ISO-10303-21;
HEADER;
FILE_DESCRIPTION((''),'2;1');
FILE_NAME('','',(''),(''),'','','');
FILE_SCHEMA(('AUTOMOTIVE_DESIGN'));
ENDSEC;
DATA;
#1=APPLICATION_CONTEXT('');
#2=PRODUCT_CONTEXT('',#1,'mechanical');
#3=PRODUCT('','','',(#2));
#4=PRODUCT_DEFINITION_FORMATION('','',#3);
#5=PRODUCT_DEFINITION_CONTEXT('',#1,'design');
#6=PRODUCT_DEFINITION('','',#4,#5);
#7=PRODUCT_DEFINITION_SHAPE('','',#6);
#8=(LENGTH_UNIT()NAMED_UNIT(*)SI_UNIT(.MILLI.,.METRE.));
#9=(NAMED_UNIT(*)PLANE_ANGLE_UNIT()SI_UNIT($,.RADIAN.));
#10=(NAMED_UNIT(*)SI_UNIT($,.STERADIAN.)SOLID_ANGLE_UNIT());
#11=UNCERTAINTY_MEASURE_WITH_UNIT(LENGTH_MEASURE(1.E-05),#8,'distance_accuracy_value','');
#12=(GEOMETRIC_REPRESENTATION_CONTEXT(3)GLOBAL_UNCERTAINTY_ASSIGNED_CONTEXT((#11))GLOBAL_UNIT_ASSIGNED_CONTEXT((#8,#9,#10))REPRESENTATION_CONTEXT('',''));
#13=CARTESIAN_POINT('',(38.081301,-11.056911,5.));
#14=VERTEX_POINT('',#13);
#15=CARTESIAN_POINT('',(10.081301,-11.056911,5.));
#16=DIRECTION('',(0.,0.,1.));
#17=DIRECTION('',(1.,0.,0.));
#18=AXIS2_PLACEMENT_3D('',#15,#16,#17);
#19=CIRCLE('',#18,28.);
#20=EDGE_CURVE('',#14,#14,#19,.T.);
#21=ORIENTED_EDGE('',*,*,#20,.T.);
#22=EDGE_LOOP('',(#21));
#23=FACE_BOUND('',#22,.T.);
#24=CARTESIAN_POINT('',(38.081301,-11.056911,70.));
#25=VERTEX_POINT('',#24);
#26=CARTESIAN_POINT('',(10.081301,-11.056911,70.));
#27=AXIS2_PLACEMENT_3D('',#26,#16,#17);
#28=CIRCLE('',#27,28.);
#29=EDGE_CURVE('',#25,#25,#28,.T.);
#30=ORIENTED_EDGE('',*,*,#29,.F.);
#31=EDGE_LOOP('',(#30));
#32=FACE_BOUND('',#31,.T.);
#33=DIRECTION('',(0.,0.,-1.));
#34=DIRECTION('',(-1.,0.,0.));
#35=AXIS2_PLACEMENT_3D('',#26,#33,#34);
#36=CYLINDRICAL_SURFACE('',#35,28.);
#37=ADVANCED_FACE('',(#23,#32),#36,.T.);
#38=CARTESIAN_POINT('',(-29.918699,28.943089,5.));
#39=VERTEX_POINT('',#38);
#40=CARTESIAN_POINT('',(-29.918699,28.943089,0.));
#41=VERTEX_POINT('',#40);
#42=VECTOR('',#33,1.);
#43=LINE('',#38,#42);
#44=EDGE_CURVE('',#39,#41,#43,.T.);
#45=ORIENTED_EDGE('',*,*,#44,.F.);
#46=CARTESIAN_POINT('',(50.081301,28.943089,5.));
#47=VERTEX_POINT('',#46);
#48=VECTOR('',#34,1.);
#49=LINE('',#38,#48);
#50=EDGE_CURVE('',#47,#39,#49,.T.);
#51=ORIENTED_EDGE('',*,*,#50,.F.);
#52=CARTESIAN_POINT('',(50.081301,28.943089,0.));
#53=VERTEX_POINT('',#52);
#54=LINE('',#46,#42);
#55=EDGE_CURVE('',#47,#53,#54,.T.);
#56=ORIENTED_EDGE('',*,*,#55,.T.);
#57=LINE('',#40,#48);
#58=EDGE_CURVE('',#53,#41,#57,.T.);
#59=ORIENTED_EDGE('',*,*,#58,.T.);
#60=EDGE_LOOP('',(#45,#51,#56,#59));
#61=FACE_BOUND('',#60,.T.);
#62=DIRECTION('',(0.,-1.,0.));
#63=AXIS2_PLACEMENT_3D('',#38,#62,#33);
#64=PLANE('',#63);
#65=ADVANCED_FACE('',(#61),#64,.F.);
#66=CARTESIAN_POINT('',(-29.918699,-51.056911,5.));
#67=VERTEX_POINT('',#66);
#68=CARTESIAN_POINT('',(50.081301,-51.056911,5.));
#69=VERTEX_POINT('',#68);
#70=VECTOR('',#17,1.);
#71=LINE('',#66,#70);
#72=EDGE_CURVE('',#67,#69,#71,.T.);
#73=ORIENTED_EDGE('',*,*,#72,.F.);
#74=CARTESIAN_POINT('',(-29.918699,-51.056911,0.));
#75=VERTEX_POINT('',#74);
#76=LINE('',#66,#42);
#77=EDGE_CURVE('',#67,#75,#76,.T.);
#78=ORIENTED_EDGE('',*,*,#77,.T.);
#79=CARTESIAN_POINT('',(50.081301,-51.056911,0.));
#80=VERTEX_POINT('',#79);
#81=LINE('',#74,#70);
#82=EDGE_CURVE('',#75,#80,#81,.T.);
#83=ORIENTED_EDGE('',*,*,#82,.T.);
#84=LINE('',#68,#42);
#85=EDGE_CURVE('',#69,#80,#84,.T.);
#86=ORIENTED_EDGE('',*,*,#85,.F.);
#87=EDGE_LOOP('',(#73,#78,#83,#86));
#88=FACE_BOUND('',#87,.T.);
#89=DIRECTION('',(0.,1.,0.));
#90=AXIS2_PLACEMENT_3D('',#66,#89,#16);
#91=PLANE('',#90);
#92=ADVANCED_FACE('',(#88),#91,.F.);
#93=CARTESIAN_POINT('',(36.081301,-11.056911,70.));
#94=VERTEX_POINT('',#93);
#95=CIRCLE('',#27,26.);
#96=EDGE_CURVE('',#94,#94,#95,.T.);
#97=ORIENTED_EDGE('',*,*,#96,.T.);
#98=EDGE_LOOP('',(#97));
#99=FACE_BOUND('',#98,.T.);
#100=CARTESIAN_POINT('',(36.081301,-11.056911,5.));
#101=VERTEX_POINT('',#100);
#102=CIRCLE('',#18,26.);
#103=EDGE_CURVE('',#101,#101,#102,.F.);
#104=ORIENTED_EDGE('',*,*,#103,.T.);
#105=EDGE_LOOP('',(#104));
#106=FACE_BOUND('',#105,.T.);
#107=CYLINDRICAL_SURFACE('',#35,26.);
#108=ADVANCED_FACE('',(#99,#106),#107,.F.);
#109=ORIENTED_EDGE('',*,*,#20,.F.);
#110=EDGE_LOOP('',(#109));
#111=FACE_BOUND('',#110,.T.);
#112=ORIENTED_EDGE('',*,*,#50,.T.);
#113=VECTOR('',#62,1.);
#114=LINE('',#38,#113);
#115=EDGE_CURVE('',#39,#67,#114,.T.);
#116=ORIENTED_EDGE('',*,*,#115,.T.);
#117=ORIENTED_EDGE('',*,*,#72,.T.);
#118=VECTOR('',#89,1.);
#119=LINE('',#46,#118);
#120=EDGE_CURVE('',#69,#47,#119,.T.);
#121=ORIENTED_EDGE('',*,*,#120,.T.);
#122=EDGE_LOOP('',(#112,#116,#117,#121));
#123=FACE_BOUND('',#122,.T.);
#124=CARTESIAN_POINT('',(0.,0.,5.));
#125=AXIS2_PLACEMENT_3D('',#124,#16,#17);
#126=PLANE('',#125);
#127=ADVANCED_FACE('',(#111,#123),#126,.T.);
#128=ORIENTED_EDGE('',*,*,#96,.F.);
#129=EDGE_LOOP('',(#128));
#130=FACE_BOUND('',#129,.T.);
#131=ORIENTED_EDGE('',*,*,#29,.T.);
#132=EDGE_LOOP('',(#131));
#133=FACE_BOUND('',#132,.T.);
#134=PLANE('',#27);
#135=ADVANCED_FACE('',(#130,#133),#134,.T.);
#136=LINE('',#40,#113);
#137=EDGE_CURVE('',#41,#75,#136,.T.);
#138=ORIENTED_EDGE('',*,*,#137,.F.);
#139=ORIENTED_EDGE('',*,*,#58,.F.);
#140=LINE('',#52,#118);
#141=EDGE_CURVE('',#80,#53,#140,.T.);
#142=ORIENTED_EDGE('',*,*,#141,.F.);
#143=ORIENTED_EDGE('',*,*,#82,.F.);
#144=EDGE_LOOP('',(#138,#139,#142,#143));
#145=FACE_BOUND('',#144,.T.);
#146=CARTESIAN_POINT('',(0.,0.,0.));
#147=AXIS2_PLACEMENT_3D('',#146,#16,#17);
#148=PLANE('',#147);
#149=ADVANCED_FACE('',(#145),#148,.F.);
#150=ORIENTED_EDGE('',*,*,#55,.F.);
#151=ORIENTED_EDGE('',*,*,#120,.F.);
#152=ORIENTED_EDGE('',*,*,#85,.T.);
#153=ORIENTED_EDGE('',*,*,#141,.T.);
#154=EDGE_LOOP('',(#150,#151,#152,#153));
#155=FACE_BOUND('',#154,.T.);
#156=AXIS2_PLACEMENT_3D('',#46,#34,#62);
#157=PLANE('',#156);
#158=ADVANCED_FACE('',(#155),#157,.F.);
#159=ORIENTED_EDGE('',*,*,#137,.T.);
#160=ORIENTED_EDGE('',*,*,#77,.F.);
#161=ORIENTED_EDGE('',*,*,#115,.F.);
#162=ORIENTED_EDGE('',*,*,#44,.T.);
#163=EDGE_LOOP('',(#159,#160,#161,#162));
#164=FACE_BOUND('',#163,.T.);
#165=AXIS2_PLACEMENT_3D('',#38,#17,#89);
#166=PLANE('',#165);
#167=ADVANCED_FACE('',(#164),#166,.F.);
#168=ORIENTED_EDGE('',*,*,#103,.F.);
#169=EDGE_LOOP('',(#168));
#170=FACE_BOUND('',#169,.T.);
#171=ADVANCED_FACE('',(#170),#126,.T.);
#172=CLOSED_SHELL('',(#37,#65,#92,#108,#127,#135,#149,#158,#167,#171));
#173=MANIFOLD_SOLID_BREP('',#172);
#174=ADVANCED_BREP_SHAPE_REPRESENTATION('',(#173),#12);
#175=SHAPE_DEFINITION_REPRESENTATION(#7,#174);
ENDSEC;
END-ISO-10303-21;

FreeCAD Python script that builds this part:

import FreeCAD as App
import Part
import Sketcher

V = App.Vector
Q = App.Units.Quantity


def add_polygon(sketch, points):
    """Adds a closed chain of lines whose ends are joined by coincident constraints."""
    first, n = sketch.GeometryCount, len(points)
    for a, b in zip(points, points[1:] + points[:1]):
        sketch.addGeometry(Part.LineSegment(App.Vector(*a, 0), App.Vector(*b, 0)), False)
    for i in range(n):
        sketch.addConstraint(Sketcher.Constraint("Coincident", first + i, 2, first + (i + 1) % n, 1))

doc = App.newDocument("Part")
body = doc.addObject("PartDesign::Body", "Body")

sketch1 = body.newObject("Sketcher::SketchObject", "Sketch")
sketch1.AttachmentSupport = (doc.getObject("XY_Plane"), [""])
sketch1.MapMode = "FlatFace"
add_polygon(sketch1, [(-30, 29), (-30, -51), (50, -51), (50, 29)])
sketch1.addConstraint([
    Sketcher.Constraint("Vertical", 0),
    Sketcher.Constraint("Horizontal", 1),
    Sketcher.Constraint("Vertical", 2),
    Sketcher.Constraint("Horizontal", 3),
    Sketcher.Constraint("Equal", 3, 0),
    Sketcher.Constraint("DistanceX", 1, 1, 1, 2, Q("80 mm")),
    Sketcher.Constraint("DistanceX", 0, 2, -1, 1, Q("29.918699 mm")),
    Sketcher.Constraint("DistanceY", 0, 2, -1, 1, Q("51.056911 mm")),
])
pad1 = body.newObject("PartDesign::Pad", "Pad")
pad1.Profile = sketch1
pad1.Length = 5

sketch2 = body.newObject("Sketcher::SketchObject", "Sketch001")
sketch2.AttachmentSupport = (doc.getObject("XY_Plane"), [""])
sketch2.MapMode = "FlatFace"
sketch2.AttachmentOffset = App.Placement(V(0, 0, 5), App.Rotation())
sketch2.addGeometry([
    Part.Circle(V(10, -11, 0), V(0, 0, 1), 28),
    Part.Circle(V(10, -11, 0), V(0, 0, 1), 26),
], False)
sketch2.addConstraint([
    Sketcher.Constraint("Coincident", 1, 3, 0, 3),
    Sketcher.Constraint("Diameter", 0, Q("56 mm")),
    Sketcher.Constraint("Diameter", 1, Q("52 mm")),
    Sketcher.Constraint("DistanceX", -1, 1, 0, 3, Q("10.081301 mm")),
    Sketcher.Constraint("DistanceY", 0, 3, -1, 1, Q("11.056911 mm")),
])
pad2 = body.newObject("PartDesign::Pad", "Pad001")
pad2.Profile = sketch2
pad2.Length = 65

doc.recompute()
